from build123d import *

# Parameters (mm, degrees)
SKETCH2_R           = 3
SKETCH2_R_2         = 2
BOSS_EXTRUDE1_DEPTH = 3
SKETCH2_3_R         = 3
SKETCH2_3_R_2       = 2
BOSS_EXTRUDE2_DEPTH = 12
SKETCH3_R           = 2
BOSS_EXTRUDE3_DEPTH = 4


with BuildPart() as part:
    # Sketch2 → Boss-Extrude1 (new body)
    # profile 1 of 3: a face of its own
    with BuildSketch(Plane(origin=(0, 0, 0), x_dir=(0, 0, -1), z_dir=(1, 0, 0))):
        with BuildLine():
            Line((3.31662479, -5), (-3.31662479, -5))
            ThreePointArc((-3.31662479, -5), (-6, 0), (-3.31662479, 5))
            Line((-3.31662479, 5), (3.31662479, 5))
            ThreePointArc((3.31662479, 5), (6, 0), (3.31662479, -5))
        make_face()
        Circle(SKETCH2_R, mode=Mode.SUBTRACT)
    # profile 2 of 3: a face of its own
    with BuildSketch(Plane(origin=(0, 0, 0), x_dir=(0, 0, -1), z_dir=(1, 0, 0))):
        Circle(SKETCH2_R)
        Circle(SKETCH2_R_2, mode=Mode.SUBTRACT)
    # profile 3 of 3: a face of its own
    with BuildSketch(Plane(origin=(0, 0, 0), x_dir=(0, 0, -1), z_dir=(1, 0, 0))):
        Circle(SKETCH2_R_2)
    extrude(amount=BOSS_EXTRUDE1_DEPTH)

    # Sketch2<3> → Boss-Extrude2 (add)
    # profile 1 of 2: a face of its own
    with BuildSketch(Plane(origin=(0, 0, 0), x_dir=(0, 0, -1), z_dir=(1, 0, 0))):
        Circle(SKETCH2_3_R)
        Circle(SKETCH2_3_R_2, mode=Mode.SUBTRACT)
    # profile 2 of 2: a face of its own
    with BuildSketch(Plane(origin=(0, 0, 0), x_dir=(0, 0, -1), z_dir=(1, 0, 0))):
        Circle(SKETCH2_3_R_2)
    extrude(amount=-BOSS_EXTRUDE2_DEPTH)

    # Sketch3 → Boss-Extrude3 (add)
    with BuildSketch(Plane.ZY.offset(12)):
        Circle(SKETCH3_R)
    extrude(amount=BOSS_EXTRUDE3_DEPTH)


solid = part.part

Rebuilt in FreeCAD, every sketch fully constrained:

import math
import FreeCAD as App
import Part
import Sketcher

doc = App.newDocument("Part")
params = doc.addObject("Spreadsheet::Sheet", "Params")
for row, (alias, value) in enumerate([
    ("sketch1_radius", "6 mm"),
    ("pad1_length", "3 mm"),
    ("sketch2_diameter", "6 mm"),
    ("pad2_length", "12 mm"),
    ("sketch3_diameter", "4 mm"),
    ("pad3_length", "4 mm"),
], start=1):
    params.set(f"A{row}", alias)
    params.set(f"B{row}", "=" + value)
    params.setAlias(f"B{row}", alias)

body = doc.addObject("PartDesign::Body", "Body")

sketch1 = body.newObject("Sketcher::SketchObject", "Sketch")
sketch1.AttachmentSupport = (doc.getObject("YZ_Plane"), [""])
sketch1.MapMode = "FlatFace"
sketch1.addGeometry([
    Part.LineSegment(App.Vector(-5, 3, 0), App.Vector(-5, -3, 0)),
    Part.ArcOfCircle(Part.Circle(App.Vector(0, 0, 0), App.Vector(0, 0, 1), 6), math.radians(-146), math.radians(-34)),
    Part.LineSegment(App.Vector(5, -3, 0), App.Vector(5, 3, 0)),
    Part.ArcOfCircle(Part.Circle(App.Vector(0, 0, 0), App.Vector(0, 0, 1), 6), math.radians(34), math.radians(146)),
], False)
sketch1.addConstraint([
    Sketcher.Constraint("Coincident", 0, 2, 1, 1),
    Sketcher.Constraint("Coincident", 1, 2, 2, 1),
    Sketcher.Constraint("Coincident", 2, 2, 3, 1),
    Sketcher.Constraint("Coincident", 3, 2, 0, 1),
    Sketcher.Constraint("Vertical", 0),
    Sketcher.Constraint("Vertical", 2),
    Sketcher.Constraint("Coincident", 1, 3, -1, 1),
    Sketcher.Constraint("Coincident", 3, 3, -1, 1),
    Sketcher.Constraint("Equal", 1, 3),
    Sketcher.Constraint("Horizontal", 0, 2, 1, 2),
    Sketcher.Constraint("Radius", 1, 6.0),
    Sketcher.Constraint("DistanceX", 0, 2, -1, 1, 5.0),
])
sketch1.setExpression("Constraints[10]", "Params.sketch1_radius")
pad1 = body.newObject("PartDesign::Pad", "Pad")
pad1.Profile = sketch1
pad1.setExpression("Length", "Params.pad1_length")

sketch2 = body.newObject("Sketcher::SketchObject", "Sketch001")
sketch2.AttachmentSupport = (doc.getObject("YZ_Plane"), [""])
sketch2.MapMode = "FlatFace"
sketch2.addGeometry(Part.Circle(App.Vector(0, 0, 0), App.Vector(0, 0, 1), 3), False)
sketch2.addConstraint([
    Sketcher.Constraint("Coincident", 0, 3, -1, 1),
    Sketcher.Constraint("Diameter", 0, 6.0),
])
sketch2.setExpression("Constraints[1]", "Params.sketch2_diameter")
pad2 = body.newObject("PartDesign::Pad", "Pad001")
pad2.Profile = sketch2
pad2.setExpression("Length", "Params.pad2_length")
pad2.Reversed = True

sketch3 = body.newObject("Sketcher::SketchObject", "Sketch002")
sketch3.AttachmentSupport = (doc.getObject("YZ_Plane"), [""])
sketch3.MapMode = "FlatFace"
sketch3.AttachmentOffset = App.Placement(App.Vector(0, 0, -12), App.Rotation())
sketch3.addGeometry(Part.Circle(App.Vector(0, 0, 0), App.Vector(0, 0, 1), 2), False)
sketch3.addConstraint([
    Sketcher.Constraint("Coincident", 0, 3, -1, 1),
    Sketcher.Constraint("Diameter", 0, 4.0),
])
sketch3.setExpression("Constraints[1]", "Params.sketch3_diameter")
pad3 = body.newObject("PartDesign::Pad", "Pad002")
pad3.Profile = sketch3
pad3.setExpression("Length", "Params.pad3_length")
pad3.Reversed = True

doc.recompute()
